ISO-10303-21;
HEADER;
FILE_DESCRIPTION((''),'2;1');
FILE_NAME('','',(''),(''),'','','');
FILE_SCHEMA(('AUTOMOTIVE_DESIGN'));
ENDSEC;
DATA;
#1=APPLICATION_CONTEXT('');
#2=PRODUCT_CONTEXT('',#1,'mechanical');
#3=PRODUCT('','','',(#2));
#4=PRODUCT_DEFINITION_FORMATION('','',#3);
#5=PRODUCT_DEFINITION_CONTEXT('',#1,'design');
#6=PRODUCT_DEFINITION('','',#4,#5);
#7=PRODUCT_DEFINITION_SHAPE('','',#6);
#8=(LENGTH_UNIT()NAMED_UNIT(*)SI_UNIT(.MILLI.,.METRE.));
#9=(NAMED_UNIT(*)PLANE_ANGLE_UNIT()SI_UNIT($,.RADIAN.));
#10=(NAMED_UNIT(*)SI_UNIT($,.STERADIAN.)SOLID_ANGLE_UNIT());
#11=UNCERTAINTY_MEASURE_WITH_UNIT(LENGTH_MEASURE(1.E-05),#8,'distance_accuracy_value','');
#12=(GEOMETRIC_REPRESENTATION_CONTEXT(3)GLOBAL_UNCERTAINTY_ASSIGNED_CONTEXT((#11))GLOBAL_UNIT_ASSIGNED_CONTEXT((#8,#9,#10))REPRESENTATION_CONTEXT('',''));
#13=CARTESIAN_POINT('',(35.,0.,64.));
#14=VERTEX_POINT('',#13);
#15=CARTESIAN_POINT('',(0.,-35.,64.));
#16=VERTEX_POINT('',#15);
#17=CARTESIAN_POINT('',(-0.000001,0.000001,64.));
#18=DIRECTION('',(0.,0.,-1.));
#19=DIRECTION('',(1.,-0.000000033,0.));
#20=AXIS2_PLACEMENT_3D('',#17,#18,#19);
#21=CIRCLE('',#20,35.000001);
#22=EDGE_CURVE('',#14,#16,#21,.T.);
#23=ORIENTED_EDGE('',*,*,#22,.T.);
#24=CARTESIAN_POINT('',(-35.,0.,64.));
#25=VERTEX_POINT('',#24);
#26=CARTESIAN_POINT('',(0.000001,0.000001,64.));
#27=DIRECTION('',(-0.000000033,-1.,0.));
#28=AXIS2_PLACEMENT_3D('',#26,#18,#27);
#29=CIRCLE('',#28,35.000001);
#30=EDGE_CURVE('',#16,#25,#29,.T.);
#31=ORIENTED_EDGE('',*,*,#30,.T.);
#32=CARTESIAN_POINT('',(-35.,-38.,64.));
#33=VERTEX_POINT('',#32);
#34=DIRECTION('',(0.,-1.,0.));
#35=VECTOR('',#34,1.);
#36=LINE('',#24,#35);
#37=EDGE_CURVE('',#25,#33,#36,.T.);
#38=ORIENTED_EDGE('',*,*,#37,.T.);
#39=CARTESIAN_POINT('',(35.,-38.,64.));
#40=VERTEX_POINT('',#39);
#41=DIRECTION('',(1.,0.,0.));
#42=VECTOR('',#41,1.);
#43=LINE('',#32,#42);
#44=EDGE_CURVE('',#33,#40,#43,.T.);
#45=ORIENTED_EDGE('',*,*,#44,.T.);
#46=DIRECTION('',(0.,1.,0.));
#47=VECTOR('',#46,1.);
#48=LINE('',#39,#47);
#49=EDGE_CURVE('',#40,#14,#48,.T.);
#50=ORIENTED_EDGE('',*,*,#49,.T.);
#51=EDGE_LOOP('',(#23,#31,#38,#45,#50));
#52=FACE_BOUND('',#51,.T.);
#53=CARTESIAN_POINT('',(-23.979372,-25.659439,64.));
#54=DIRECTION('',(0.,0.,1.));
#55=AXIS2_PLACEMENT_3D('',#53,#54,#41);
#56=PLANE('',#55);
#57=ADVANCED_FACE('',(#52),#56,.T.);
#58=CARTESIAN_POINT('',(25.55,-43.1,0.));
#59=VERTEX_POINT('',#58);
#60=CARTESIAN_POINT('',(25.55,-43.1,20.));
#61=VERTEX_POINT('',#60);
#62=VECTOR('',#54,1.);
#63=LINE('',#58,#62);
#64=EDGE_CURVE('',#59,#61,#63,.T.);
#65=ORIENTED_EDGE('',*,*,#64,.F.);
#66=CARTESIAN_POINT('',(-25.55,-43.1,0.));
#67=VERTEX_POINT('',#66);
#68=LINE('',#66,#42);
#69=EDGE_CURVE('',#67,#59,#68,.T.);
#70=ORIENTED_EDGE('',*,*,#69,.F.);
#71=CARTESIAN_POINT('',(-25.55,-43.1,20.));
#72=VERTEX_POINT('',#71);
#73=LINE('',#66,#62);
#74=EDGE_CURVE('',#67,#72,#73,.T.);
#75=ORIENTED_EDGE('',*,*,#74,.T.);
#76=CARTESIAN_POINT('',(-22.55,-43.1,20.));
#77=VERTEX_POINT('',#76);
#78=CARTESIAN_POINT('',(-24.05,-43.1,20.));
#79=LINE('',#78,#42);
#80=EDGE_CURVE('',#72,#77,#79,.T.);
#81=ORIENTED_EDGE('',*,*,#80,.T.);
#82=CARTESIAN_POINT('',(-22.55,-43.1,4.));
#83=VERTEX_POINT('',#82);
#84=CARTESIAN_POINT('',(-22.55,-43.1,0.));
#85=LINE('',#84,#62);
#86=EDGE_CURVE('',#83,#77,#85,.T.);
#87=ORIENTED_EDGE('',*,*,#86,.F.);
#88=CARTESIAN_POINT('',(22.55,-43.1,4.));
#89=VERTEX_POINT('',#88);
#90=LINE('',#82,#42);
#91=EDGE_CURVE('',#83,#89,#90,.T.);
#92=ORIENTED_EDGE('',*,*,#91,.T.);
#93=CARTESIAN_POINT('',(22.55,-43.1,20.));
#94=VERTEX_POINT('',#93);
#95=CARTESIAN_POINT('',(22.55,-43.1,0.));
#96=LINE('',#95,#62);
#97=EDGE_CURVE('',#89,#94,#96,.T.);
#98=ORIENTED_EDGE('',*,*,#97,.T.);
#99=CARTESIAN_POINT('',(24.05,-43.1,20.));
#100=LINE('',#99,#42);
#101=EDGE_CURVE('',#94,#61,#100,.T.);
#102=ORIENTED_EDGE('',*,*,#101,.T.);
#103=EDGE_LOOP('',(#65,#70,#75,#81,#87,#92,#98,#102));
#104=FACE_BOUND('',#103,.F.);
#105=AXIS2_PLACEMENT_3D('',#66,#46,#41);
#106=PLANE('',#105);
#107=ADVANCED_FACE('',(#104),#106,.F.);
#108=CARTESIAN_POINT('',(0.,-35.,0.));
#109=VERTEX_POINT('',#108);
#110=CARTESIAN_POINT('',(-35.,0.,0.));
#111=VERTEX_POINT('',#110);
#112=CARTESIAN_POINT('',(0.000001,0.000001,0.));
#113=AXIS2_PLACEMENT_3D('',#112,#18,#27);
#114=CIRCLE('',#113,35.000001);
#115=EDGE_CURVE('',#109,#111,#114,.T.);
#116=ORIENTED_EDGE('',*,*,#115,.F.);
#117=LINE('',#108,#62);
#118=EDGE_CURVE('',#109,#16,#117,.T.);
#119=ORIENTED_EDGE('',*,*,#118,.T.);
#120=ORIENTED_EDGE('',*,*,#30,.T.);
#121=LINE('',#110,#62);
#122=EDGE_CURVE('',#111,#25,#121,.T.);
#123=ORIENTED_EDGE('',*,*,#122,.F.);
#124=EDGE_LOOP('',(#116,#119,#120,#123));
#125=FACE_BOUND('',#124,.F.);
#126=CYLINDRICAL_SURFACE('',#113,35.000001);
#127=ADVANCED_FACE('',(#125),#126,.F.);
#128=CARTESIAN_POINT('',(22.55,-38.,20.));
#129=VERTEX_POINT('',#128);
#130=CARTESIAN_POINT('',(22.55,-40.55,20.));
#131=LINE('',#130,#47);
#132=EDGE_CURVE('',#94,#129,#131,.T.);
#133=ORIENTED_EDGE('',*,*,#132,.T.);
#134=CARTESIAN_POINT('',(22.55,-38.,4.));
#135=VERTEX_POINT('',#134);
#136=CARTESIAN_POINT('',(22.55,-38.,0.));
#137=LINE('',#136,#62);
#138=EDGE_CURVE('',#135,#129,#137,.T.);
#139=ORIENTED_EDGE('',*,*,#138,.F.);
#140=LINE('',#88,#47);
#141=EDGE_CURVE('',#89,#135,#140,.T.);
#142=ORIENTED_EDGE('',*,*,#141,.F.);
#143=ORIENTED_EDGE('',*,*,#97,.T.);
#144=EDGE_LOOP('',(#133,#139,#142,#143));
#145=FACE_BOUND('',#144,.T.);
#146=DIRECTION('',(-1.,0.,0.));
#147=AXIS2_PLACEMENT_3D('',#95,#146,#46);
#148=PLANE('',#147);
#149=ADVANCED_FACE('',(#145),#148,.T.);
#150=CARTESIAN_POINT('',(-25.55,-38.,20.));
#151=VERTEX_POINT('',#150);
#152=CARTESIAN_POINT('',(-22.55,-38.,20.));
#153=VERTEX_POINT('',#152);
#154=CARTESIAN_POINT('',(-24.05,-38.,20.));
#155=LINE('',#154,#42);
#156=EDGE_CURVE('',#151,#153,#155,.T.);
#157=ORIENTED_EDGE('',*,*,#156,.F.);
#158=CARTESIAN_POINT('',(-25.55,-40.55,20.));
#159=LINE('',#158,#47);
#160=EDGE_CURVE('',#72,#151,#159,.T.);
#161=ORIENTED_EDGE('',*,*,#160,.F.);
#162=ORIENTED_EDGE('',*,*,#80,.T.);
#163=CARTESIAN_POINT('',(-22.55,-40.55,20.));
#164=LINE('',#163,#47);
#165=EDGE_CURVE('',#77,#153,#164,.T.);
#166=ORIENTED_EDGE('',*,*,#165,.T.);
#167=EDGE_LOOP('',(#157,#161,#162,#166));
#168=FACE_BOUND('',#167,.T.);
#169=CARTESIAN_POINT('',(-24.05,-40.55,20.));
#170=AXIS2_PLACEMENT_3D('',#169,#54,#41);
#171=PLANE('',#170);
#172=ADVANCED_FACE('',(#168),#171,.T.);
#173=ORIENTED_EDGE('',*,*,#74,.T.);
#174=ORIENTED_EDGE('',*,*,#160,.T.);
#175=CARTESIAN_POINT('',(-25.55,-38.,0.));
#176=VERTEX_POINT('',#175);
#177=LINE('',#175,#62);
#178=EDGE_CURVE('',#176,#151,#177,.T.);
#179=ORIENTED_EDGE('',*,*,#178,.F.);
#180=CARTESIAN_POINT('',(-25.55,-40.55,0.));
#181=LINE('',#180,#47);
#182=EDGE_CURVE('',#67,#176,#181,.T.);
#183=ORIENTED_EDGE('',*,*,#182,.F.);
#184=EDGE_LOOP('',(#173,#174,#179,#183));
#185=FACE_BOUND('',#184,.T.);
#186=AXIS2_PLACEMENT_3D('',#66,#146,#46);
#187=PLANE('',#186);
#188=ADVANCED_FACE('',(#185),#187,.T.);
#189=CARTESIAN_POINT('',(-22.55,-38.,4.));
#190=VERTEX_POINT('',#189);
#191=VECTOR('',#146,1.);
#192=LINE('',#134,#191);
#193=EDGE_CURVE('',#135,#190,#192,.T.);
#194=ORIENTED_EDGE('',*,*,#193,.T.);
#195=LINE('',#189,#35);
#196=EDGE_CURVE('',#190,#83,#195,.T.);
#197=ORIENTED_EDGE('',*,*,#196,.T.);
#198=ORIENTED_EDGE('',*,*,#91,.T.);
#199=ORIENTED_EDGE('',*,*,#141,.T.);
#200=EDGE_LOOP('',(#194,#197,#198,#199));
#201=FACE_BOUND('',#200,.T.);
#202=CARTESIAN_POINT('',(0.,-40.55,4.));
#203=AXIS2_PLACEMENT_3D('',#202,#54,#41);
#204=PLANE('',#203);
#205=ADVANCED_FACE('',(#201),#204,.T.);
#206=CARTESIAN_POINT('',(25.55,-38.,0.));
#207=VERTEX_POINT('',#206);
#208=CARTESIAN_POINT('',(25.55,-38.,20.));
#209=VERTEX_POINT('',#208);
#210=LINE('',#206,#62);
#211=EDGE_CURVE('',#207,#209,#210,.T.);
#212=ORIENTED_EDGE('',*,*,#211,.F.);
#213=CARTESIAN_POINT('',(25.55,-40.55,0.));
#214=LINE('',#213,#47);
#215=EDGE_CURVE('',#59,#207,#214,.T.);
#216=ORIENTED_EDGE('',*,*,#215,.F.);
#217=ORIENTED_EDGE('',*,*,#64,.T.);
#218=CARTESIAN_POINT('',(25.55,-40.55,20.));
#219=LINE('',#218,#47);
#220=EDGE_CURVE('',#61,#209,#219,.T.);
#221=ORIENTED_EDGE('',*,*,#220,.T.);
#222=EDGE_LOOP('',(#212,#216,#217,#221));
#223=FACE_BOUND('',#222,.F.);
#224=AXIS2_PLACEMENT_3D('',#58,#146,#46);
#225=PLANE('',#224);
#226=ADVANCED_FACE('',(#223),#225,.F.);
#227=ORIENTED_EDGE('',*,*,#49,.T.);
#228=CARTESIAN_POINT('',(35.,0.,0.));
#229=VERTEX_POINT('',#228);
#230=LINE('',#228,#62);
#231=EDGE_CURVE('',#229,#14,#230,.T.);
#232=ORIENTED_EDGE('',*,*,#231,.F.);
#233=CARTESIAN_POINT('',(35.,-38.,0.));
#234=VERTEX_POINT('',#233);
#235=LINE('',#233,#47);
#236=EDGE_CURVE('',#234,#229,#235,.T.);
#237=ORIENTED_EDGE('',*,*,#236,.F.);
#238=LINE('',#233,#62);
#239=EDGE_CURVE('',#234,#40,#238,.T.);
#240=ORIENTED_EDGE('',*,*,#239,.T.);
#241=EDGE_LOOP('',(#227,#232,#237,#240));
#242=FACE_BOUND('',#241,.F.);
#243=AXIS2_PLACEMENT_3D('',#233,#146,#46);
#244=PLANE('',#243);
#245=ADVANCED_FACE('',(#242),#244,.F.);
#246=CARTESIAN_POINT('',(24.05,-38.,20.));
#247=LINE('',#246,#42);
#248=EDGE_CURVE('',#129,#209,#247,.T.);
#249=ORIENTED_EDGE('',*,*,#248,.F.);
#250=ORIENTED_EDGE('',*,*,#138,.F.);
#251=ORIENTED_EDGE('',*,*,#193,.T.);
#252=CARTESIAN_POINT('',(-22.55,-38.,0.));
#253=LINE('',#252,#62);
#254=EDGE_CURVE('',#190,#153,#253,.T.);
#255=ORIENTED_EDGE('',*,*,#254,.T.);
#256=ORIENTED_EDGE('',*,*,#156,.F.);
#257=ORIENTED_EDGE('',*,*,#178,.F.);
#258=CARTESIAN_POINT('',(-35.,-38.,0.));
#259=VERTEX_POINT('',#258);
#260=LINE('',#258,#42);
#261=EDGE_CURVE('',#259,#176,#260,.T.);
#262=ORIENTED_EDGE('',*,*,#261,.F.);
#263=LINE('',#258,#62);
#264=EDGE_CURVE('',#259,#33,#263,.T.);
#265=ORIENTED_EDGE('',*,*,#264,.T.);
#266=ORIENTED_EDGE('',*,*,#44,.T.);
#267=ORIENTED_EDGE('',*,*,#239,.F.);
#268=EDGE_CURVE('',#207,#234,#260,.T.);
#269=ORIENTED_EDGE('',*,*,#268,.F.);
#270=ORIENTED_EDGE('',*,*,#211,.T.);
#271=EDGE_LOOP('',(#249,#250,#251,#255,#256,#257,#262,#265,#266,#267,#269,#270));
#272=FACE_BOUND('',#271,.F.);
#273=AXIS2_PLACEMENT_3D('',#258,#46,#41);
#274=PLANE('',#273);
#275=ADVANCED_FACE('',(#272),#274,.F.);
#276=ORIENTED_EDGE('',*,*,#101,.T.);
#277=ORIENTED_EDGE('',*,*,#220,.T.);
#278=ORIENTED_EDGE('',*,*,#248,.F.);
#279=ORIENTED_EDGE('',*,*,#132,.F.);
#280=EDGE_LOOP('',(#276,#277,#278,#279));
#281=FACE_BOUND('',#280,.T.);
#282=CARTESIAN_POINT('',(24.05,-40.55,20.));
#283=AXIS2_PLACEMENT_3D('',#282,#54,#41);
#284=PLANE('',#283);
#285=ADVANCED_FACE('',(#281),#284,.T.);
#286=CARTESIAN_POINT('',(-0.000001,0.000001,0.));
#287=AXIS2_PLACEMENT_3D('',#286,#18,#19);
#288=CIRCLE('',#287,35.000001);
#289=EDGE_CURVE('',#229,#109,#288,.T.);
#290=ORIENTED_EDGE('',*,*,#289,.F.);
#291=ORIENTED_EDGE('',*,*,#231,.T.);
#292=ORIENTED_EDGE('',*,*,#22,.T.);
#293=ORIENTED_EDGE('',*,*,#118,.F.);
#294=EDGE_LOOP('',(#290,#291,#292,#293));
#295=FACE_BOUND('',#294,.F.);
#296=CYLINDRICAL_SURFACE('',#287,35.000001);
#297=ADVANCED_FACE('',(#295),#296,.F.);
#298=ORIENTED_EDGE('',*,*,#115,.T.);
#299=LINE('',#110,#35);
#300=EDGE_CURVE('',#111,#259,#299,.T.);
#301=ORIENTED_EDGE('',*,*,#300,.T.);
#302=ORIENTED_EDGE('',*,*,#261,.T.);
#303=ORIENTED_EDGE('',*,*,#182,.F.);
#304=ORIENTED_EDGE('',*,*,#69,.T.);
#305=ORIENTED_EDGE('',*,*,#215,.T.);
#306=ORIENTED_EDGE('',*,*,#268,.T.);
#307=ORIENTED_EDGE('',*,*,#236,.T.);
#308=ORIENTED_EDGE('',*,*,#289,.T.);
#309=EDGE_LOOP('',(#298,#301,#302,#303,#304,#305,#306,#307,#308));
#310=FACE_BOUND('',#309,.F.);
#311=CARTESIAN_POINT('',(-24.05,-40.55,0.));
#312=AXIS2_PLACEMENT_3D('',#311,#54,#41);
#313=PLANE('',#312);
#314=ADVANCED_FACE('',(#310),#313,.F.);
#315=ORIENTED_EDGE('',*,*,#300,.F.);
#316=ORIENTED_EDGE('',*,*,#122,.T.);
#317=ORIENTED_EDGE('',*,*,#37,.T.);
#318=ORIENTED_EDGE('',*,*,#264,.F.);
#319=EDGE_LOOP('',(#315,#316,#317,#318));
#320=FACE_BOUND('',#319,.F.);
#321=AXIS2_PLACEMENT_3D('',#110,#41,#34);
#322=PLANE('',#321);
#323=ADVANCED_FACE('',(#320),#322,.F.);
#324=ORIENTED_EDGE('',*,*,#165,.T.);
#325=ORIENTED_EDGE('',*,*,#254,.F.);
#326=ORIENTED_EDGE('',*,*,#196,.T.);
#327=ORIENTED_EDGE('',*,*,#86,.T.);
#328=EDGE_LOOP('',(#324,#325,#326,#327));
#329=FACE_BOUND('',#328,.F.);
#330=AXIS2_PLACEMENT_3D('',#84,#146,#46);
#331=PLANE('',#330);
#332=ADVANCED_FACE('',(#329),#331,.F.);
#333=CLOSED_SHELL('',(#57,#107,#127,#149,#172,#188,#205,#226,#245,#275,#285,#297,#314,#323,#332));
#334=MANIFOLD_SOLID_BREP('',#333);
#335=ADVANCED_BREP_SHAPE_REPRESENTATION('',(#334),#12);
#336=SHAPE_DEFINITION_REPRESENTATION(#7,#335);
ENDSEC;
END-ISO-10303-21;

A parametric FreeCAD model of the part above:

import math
import FreeCAD as App
import Part
import Sketcher

doc = App.newDocument("Part")
body = doc.addObject("PartDesign::Body", "Body")

# Sketch on XY plane
sketch1 = body.newObject("Sketcher::SketchObject", "Sketch")
sketch1.AttachmentSupport = (doc.getObject("XY_Plane"), [""])
sketch1.MapMode = "FlatFace"
sketch1.addGeometry(Part.ArcOfCircle(Part.Circle(App.Vector(0, 0, 0), App.Vector(0, 0, 1), 35), math.radians(-180), math.radians(-90)), False)
sketch1.addGeometry(Part.LineSegment(App.Vector(-35, 0, 0), App.Vector(-35, -38, 0)), False)
sketch1.addGeometry(Part.LineSegment(App.Vector(-35, -38, 0), App.Vector(35, -38, 0)), False)
sketch1.addGeometry(Part.LineSegment(App.Vector(35, -38, 0), App.Vector(35, 0, 0)), False)
sketch1.addGeometry(Part.ArcOfCircle(Part.Circle(App.Vector(0, 0, 0), App.Vector(0, 0, 1), 35), math.radians(-90), math.radians(0)), False)
sketch1.addConstraint(Sketcher.Constraint("Tangent", 0, 1, 1, 1))
sketch1.addConstraint(Sketcher.Constraint("Coincident", 1, 2, 2, 1))
sketch1.addConstraint(Sketcher.Constraint("Coincident", 2, 2, 3, 1))
sketch1.addConstraint(Sketcher.Constraint("Tangent", 3, 2, 4, 2))
sketch1.addConstraint(Sketcher.Constraint("Tangent", 4, 1, 0, 2))
sketch1.addConstraint(Sketcher.Constraint("Vertical", 1))
sketch1.addConstraint(Sketcher.Constraint("Horizontal", 2))
sketch1.addConstraint(Sketcher.Constraint("Vertical", 3))
sketch1.addConstraint(Sketcher.Constraint("Coincident", 0, 3, -1, 1))
sketch1.addConstraint(Sketcher.Constraint("Equal", 0, 4))
sketch1.addConstraint(Sketcher.Constraint("PointOnObject", 4, 1, -2))
sketch1.addConstraint(Sketcher.Constraint("Radius", 0, 35.000001))
sketch1.addConstraint(Sketcher.Constraint("DistanceY", 1, 2, 1, 1, 38.0))
pad1 = body.newObject("PartDesign::Pad", "Pad")
pad1.Profile = sketch1
pad1.Length = 64

# Sketch on XY plane
sketch2 = body.newObject("Sketcher::SketchObject", "Sketch001")
sketch2.AttachmentSupport = (doc.getObject("XY_Plane"), [""])
sketch2.MapMode = "FlatFace"
sketch2.addGeometry(Part.LineSegment(App.Vector(23, -38, 0), App.Vector(-23, -38, 0)), False)
sketch2.addGeometry(Part.LineSegment(App.Vector(-23, -38, 0), App.Vector(-23, -43, 0)), False)
sketch2.addGeometry(Part.LineSegment(App.Vector(-23, -43, 0), App.Vector(23, -43, 0)), False)
sketch2.addGeometry(Part.LineSegment(App.Vector(23, -43, 0), App.Vector(23, -38, 0)), False)
sketch2.addConstraint(Sketcher.Constraint("Coincident", 0, 2, 1, 1))
sketch2.addConstraint(Sketcher.Constraint("Coincident", 1, 2, 2, 1))
sketch2.addConstraint(Sketcher.Constraint("Coincident", 2, 2, 3, 1))
sketch2.addConstraint(Sketcher.Constraint("Coincident", 3, 2, 0, 1))
sketch2.addConstraint(Sketcher.Constraint("Horizontal", 0))
sketch2.addConstraint(Sketcher.Constraint("Vertical", 1))
sketch2.addConstraint(Sketcher.Constraint("Horizontal", 2))
sketch2.addConstraint(Sketcher.Constraint("Vertical", 3))
sketch2.addConstraint(Sketcher.Constraint("DistanceX", 0, 2, 0, 1, 45.1))
sketch2.addConstraint(Sketcher.Constraint("DistanceY", 1, 2, 1, 1, 5.1))
sketch2.addConstraint(Sketcher.Constraint("DistanceY", 0, 2, -1, 1, 38.0))
sketch2.addConstraint(Sketcher.Constraint("DistanceX", 0, 2, -1, 1, 22.55))
pad2 = body.newObject("PartDesign::Pad", "Pad001")
pad2.Profile = sketch2
pad2.Length = 4

# Sketch on XY plane
sketch3 = body.newObject("Sketcher::SketchObject", "Sketch002")
sketch3.AttachmentSupport = (doc.getObject("XY_Plane"), [""])
sketch3.MapMode = "FlatFace"
sketch3.addGeometry(Part.LineSegment(App.Vector(-25.6, -38, 0), App.Vector(-25.6, -43.1, 0)), False)
sketch3.addGeometry(Part.LineSegment(App.Vector(-25.6, -43.1, 0), App.Vector(-22.6, -43.1, 0)), False)
sketch3.addGeometry(Part.LineSegment(App.Vector(-22.6, -43.1, 0), App.Vector(-22.6, -38, 0)), False)
sketch3.addGeometry(Part.LineSegment(App.Vector(-22.6, -38, 0), App.Vector(-25.6, -38, 0)), False)
sketch3.addGeometry(Part.LineSegment(App.Vector(22.6, -38, 0), App.Vector(22.6, -43.1, 0)), False)
sketch3.addGeometry(Part.LineSegment(App.Vector(22.6, -43.1, 0), App.Vector(25.6, -43.1, 0)), False)
sketch3.addGeometry(Part.LineSegment(App.Vector(25.6, -43.1, 0), App.Vector(25.6, -38, 0)), False)
sketch3.addGeometry(Part.LineSegment(App.Vector(25.6, -38, 0), App.Vector(22.6, -38, 0)), False)
sketch3.addConstraint(Sketcher.Constraint("Coincident", 0, 2, 1, 1))
sketch3.addConstraint(Sketcher.Constraint("Coincident", 1, 2, 2, 1))
sketch3.addConstraint(Sketcher.Constraint("Coincident", 2, 2, 3, 1))
sketch3.addConstraint(Sketcher.Constraint("Coincident", 3, 2, 0, 1))
sketch3.addConstraint(Sketcher.Constraint("Coincident", 4, 2, 5, 1))
sketch3.addConstraint(Sketcher.Constraint("Coincident", 5, 2, 6, 1))
sketch3.addConstraint(Sketcher.Constraint("Coincident", 6, 2, 7, 1))
sketch3.addConstraint(Sketcher.Constraint("Coincident", 7, 2, 4, 1))
sketch3.addConstraint(Sketcher.Constraint("Vertical", 0))
sketch3.addConstraint(Sketcher.Constraint("Horizontal", 1))
sketch3.addConstraint(Sketcher.Constraint("Vertical", 2))
sketch3.addConstraint(Sketcher.Constraint("Horizontal", 3))
sketch3.addConstraint(Sketcher.Constraint("Vertical", 4))
sketch3.addConstraint(Sketcher.Constraint("Horizontal", 5))
sketch3.addConstraint(Sketcher.Constraint("Vertical", 6))
sketch3.addConstraint(Sketcher.Constraint("Horizontal", 7))
sketch3.addConstraint(Sketcher.Constraint("Symmetric", 1, 2, 4, 2, -2))
sketch3.addConstraint(Sketcher.Constraint("Symmetric", 3, 2, 6, 2, -2))
sketch3.addConstraint(Sketcher.Constraint("DistanceX", 1, 1, 1, 2, 3.0))
sketch3.addConstraint(Sketcher.Constraint("DistanceY", 0, 2, 0, 1, 5.1))
sketch3.addConstraint(Sketcher.Constraint("DistanceY", 2, 2, -1, 1, 38.0))
sketch3.addConstraint(Sketcher.Constraint("DistanceX", 1, 2, 4, 2, 45.1))
pad3 = body.newObject("PartDesign::Pad", "Pad002")
pad3.Profile = sketch3
pad3.Length = 20

doc.recompute()
